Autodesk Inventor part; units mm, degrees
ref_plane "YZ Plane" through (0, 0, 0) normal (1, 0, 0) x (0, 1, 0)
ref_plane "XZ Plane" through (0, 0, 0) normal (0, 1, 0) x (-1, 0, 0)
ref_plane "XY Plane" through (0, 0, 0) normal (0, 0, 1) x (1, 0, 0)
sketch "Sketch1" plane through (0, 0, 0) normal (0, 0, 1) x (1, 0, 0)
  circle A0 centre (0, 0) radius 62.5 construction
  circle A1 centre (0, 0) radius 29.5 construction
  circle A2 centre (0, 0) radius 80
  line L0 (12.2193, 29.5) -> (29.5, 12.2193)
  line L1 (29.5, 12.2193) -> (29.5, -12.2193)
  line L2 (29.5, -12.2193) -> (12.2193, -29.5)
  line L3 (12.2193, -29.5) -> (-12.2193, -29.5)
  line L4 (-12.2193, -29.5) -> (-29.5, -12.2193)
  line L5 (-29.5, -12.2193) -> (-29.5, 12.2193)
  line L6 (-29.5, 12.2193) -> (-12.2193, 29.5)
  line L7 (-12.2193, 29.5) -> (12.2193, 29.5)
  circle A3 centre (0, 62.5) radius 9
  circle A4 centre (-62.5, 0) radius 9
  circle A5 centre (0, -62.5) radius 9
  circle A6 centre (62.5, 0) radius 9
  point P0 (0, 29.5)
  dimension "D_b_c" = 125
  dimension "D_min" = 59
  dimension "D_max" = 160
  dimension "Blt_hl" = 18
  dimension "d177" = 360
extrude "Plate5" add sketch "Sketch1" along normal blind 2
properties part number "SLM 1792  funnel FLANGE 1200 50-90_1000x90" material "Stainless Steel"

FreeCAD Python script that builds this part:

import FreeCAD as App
import Part
import Sketcher

V = App.Vector
Q = App.Units.Quantity

doc = App.newDocument("Part")
body = doc.addObject("PartDesign::Body", "Body")

# Sketch on XY plane
sketch1 = doc.addObject("Sketcher::SketchObject", "Sketch")
body.addObject(sketch1)
sketch1.AttachmentSupport = (doc.XY_Plane, [""])
sketch1.MapMode = "FlatFace"
sketch1.addGeometry([
    Part.Circle(V(0, 0, 0), V(0, 0, 1), 80),  # 0
    Part.Circle(V(0, -62, 0), V(0, 0, 1), 9),  # 1
    Part.Circle(V(-62, 0, 0), V(0, 0, 1), 9),  # 2
    Part.LineSegment(V(-12, 30, 0), V(12, 30, 0)),  # 3
    Part.LineSegment(V(12, 30, 0), V(30, 12, 0)),  # 4
    Part.LineSegment(V(30, 12, 0), V(30, -12, 0)),  # 5
    Part.LineSegment(V(30, -12, 0), V(12, -30, 0)),  # 6
    Part.LineSegment(V(12, -30, 0), V(-12, -30, 0)),  # 7
    Part.LineSegment(V(-12, -30, 0), V(-30, -12, 0)),  # 8
    Part.LineSegment(V(-30, -12, 0), V(-30, 12, 0)),  # 9
    Part.LineSegment(V(-30, 12, 0), V(-12, 30, 0)),  # 10
    Part.Circle(V(62, 0, 0), V(0, 0, 1), 9),  # 11
    Part.Circle(V(0, 62, 0), V(0, 0, 1), 9),  # 12
], False)
sketch1.addConstraint([
    Sketcher.Constraint("Coincident", 3, 2, 4, 1),
    Sketcher.Constraint("Coincident", 4, 2, 5, 1),
    Sketcher.Constraint("Coincident", 5, 2, 6, 1),
    Sketcher.Constraint("Coincident", 6, 2, 7, 1),
    Sketcher.Constraint("Coincident", 7, 2, 8, 1),
    Sketcher.Constraint("Coincident", 8, 2, 9, 1),
    Sketcher.Constraint("Coincident", 9, 2, 10, 1),
    Sketcher.Constraint("Coincident", 10, 2, 3, 1),
    Sketcher.Constraint("Horizontal", 3),
    Sketcher.Constraint("Vertical", 5),
    Sketcher.Constraint("Horizontal", 7),
    Sketcher.Constraint("Vertical", 9),
    Sketcher.Constraint("Coincident", 0, 3, -1, 1),
    Sketcher.Constraint("Equal", 1, 2),
    Sketcher.Constraint("Equal", 2, 11),
    Sketcher.Constraint("Equal", 11, 12),
    Sketcher.Constraint("Symmetric", 2, 3, 11, 3, -1, 1),
    Sketcher.Constraint("Symmetric", 1, 3, 12, 3, -1, 1),
    Sketcher.Constraint("Symmetric", 3, 2, 7, 2, -1, 1),
    Sketcher.Constraint("Symmetric", 4, 2, 8, 2, -1, 1),
    Sketcher.Constraint("PointOnObject", 1, 3, -2),
    Sketcher.Constraint("PointOnObject", 2, 3, -1),
    Sketcher.Constraint("Perpendicular", 4, 6),
    Sketcher.Constraint("Perpendicular", 8, 10),
    Sketcher.Constraint("Horizontal", 5, 2, 8, 2),
    Sketcher.Constraint("Horizontal", 4, 2, 9, 2),
    Sketcher.Constraint("Vertical", 3, 2, 6, 2),
    Sketcher.Constraint("Equal", 7, 5),
    Sketcher.Constraint("Diameter", 0, Q("160 mm")),
    Sketcher.Constraint("Diameter", 1, Q("18 mm")),
    Sketcher.Constraint("DistanceX", 2, 3, 11, 3, Q("125 mm")),
    Sketcher.Constraint("DistanceY", 1, 3, 12, 3, Q("125 mm")),
    Sketcher.Constraint("DistanceY", 3, 2, 12, 3, Q("33 mm")),
    Sketcher.Constraint("DistanceX", 3, 1, 3, 2, Q("24.4386 mm")),
])
pad1 = doc.addObject("PartDesign::Pad", "Pad")
body.addObject(pad1)
pad1.Profile = sketch1
pad1.Length = 2

doc.recompute()
